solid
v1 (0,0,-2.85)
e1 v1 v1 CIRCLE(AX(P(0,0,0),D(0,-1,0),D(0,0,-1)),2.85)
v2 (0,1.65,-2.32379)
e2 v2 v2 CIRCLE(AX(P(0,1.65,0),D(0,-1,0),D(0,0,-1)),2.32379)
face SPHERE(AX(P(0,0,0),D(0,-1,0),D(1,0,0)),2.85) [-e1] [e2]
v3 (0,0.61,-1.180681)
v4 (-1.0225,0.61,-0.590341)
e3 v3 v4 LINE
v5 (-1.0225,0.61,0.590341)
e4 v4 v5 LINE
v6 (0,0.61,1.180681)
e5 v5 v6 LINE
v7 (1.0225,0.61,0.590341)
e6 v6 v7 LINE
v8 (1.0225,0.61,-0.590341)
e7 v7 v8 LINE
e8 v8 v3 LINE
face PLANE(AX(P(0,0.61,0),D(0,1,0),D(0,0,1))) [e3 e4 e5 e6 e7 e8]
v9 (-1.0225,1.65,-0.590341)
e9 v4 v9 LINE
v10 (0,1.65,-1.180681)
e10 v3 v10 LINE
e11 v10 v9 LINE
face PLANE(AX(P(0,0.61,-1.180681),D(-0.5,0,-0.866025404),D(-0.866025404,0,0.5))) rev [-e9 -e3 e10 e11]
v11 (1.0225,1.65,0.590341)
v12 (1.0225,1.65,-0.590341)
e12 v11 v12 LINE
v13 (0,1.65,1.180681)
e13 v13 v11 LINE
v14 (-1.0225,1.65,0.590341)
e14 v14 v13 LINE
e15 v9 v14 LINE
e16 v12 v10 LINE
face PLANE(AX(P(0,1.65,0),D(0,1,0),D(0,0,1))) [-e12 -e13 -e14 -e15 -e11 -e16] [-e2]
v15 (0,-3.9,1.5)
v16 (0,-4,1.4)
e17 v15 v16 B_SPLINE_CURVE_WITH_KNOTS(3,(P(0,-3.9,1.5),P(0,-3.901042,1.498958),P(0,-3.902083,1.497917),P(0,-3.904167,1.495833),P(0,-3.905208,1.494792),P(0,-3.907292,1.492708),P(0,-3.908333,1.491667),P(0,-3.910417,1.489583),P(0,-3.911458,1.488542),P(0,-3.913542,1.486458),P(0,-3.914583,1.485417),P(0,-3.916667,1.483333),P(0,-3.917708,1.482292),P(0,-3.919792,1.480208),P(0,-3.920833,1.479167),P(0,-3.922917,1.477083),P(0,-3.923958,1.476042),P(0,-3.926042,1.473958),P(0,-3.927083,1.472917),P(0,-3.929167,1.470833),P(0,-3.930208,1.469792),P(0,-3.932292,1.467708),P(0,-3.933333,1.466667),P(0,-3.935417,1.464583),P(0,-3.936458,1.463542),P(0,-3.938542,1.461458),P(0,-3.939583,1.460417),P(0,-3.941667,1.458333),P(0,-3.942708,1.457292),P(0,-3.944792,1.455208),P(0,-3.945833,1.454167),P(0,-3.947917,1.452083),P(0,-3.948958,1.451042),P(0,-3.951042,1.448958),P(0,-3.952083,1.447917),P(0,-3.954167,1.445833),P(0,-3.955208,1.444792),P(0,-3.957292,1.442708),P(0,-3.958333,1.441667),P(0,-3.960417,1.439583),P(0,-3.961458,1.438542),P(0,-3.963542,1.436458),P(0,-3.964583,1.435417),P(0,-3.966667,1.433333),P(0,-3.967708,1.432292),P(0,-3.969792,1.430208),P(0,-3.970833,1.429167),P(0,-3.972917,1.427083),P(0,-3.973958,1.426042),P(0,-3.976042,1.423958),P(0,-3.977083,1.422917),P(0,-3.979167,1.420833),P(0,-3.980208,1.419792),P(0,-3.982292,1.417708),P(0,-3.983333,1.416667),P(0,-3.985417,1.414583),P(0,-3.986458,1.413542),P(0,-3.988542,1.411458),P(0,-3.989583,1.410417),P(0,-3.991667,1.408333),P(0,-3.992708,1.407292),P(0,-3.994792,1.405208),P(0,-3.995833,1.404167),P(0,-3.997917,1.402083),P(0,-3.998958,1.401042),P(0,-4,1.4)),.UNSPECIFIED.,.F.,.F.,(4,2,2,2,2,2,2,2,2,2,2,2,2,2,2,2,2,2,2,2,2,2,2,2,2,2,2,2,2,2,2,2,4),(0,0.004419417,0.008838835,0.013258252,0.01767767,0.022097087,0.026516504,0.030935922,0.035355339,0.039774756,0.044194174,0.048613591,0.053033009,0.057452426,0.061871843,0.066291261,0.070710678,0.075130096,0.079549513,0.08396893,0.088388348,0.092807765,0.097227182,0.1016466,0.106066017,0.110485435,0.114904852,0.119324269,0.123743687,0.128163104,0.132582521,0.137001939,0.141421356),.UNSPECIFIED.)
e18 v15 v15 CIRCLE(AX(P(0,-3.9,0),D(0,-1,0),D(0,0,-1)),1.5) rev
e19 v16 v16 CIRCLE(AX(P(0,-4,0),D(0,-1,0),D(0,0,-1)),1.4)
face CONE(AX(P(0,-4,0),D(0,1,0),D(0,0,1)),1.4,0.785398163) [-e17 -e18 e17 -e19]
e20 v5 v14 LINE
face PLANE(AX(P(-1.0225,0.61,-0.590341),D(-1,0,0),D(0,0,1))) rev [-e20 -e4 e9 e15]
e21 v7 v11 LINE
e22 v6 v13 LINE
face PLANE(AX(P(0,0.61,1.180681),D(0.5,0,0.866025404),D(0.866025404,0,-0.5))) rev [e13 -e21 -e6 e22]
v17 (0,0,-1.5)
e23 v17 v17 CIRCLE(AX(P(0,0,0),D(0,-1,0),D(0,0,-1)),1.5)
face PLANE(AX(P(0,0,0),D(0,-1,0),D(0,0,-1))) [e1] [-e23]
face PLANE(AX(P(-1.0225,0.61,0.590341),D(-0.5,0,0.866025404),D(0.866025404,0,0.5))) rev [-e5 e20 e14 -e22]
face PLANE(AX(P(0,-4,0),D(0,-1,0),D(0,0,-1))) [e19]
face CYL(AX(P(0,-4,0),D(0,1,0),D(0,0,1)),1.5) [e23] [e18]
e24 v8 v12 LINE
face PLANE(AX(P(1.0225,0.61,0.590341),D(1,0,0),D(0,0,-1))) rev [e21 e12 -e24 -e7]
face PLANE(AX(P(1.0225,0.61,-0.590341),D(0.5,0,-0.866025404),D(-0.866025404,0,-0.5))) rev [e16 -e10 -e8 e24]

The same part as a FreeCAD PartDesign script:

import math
import FreeCAD as App
import Part
import Sketcher

V = App.Vector
Q = App.Units.Quantity


def edges_at(feature, points):
    """Names of the edges that pass closest to the given points."""
    edges = feature.Shape.Edges
    near = lambda p: min(range(len(edges)), key=lambda i: edges[i].distToShape(Part.Vertex(*p))[0])
    return sorted({f"Edge{near(p) + 1}" for p in points})


def add_polygon(sketch, points):
    """Adds a closed chain of lines whose ends are joined by coincident constraints."""
    first, n = sketch.GeometryCount, len(points)
    for a, b in zip(points, points[1:] + points[:1]):
        sketch.addGeometry(Part.LineSegment(App.Vector(*a, 0), App.Vector(*b, 0)), False)
    for i in range(n):
        sketch.addConstraint(Sketcher.Constraint("Coincident", first + i, 2, first + (i + 1) % n, 1))

doc = App.newDocument("Part")
params = doc.addObject("Spreadsheet::Sheet", "Params")
for row, (alias, value) in enumerate([
    ("sketch1_radius", "2.85 mm"),
    ("sketch1_height", "1.65 mm"),
    ("revolution_angle", "360 deg"),
    ("sketch2_diameter", "3 mm"),
    ("pad1_length", "4 mm"),
    ("pocket1_length", "1.04 mm"),
    ("chamfer_size", "0.1 mm"),
], start=1):
    params.set(f"A{row}", alias)
    params.set(f"B{row}", "=" + value)
    params.setAlias(f"B{row}", alias)

body = doc.addObject("PartDesign::Body", "Body")

# Sketch on XY plane
sketch1 = body.newObject("Sketcher::SketchObject", "Sketch")
sketch1.AttachmentSupport = (doc.getObject("XY_Plane"), [""])
sketch1.MapMode = "FlatFace"
sketch1.addGeometry([
    Part.LineSegment(V(0, 0, 0), V(2.9, 0, 0)),
    Part.ArcOfCircle(Part.Circle(V(0, 0, 0), V(0, 0, 1), 2.9), math.radians(0), math.radians(35)),
    Part.LineSegment(V(2.3, 1.6, 0), V(0, 1.6, 0)),
    Part.LineSegment(V(0, 1.6, 0), V(0, 0, 0)),
], False)
sketch1.addConstraint([
    Sketcher.Constraint("Coincident", 0, 2, 1, 1),
    Sketcher.Constraint("Coincident", 1, 2, 2, 1),
    Sketcher.Constraint("Coincident", 2, 2, 3, 1),
    Sketcher.Constraint("Coincident", 3, 2, 0, 1),
    Sketcher.Constraint("Horizontal", 0),
    Sketcher.Constraint("Horizontal", 2),
    Sketcher.Constraint("Vertical", 3),
    Sketcher.Constraint("Coincident", 1, 3, -1, 1),
    Sketcher.Constraint("Coincident", 3, 2, -1, 1),
    Sketcher.Constraint("Radius", 1, Q("2.85 mm")),
    Sketcher.Constraint("DistanceY", 3, 2, 3, 1, Q("1.65 mm")),
])
sketch1.setExpression("Constraints[9]", "Params.sketch1_radius")
sketch1.setExpression("Constraints[10]", "Params.sketch1_height")
revolution = body.newObject("PartDesign::Revolution", "Revolution")
revolution.Profile = sketch1
revolution.ReferenceAxis = (sketch1, ["V_Axis"])
revolution.setExpression("Angle", "Params.revolution_angle")

# Sketch on XZ plane
sketch2 = body.newObject("Sketcher::SketchObject", "Sketch001")
sketch2.AttachmentSupport = (doc.getObject("XZ_Plane"), [""])
sketch2.MapMode = "FlatFace"
sketch2.addGeometry(Part.Circle(V(0, 0, 0), V(0, 0, 1), 1.5), False)
sketch2.addConstraint([
    Sketcher.Constraint("Coincident", 0, 3, -1, 1),
    Sketcher.Constraint("Diameter", 0, Q("3 mm")),
])
sketch2.setExpression("Constraints[1]", "Params.sketch2_diameter")
pad1 = body.newObject("PartDesign::Pad", "Pad")
pad1.Profile = sketch2
pad1.setExpression("Length", "Params.pad1_length")

# Sketch on XZ plane
sketch3 = body.newObject("Sketcher::SketchObject", "Sketch002")
sketch3.AttachmentSupport = (doc.getObject("XZ_Plane"), [""])
sketch3.MapMode = "FlatFace"
sketch3.AttachmentOffset = App.Placement(V(0, 0, -1.65), App.Rotation())
add_polygon(sketch3, [(1, 0.6), (1, -0.6), (0, -1.2), (-1, -0.6), (-1, 0.6), (0, 1.2)])  # lines 0-5
sketch3.addConstraint([
    Sketcher.Constraint("Vertical", 0),
    Sketcher.Constraint("Vertical", 3),
    Sketcher.Constraint("Symmetric", 0, 2, 3, 2, -1, 1),
    Sketcher.Constraint("Symmetric", 1, 2, 4, 2, -1, 1),
    Sketcher.Constraint("PointOnObject", 1, 2, -2),
    Sketcher.Constraint("Parallel", 2, 5),
    Sketcher.Constraint("Horizontal", 0, 2, 2, 2),
    Sketcher.Constraint("Angle", 1, Q("-150 deg")),
    Sketcher.Constraint("DistanceX", 2, 2, 0, 2, Q("2.045 mm")),
    Sketcher.Constraint("DistanceY", 0, 2, 0, 1, Q("1.180681 mm")),
])
pocket1 = body.newObject("PartDesign::Pocket", "Pocket")
pocket1.Profile = sketch3
pocket1.setExpression("Length", "Params.pocket1_length")
pocket1.Reversed = True
doc.recompute()

chamfer = body.newObject("PartDesign::Chamfer", "Chamfer")
chamfer.Base = (pocket1, edges_at(pocket1, [(0, -4, 1.5)]))
chamfer.setExpression("Size", "Params.chamfer_size")

doc.recompute()
